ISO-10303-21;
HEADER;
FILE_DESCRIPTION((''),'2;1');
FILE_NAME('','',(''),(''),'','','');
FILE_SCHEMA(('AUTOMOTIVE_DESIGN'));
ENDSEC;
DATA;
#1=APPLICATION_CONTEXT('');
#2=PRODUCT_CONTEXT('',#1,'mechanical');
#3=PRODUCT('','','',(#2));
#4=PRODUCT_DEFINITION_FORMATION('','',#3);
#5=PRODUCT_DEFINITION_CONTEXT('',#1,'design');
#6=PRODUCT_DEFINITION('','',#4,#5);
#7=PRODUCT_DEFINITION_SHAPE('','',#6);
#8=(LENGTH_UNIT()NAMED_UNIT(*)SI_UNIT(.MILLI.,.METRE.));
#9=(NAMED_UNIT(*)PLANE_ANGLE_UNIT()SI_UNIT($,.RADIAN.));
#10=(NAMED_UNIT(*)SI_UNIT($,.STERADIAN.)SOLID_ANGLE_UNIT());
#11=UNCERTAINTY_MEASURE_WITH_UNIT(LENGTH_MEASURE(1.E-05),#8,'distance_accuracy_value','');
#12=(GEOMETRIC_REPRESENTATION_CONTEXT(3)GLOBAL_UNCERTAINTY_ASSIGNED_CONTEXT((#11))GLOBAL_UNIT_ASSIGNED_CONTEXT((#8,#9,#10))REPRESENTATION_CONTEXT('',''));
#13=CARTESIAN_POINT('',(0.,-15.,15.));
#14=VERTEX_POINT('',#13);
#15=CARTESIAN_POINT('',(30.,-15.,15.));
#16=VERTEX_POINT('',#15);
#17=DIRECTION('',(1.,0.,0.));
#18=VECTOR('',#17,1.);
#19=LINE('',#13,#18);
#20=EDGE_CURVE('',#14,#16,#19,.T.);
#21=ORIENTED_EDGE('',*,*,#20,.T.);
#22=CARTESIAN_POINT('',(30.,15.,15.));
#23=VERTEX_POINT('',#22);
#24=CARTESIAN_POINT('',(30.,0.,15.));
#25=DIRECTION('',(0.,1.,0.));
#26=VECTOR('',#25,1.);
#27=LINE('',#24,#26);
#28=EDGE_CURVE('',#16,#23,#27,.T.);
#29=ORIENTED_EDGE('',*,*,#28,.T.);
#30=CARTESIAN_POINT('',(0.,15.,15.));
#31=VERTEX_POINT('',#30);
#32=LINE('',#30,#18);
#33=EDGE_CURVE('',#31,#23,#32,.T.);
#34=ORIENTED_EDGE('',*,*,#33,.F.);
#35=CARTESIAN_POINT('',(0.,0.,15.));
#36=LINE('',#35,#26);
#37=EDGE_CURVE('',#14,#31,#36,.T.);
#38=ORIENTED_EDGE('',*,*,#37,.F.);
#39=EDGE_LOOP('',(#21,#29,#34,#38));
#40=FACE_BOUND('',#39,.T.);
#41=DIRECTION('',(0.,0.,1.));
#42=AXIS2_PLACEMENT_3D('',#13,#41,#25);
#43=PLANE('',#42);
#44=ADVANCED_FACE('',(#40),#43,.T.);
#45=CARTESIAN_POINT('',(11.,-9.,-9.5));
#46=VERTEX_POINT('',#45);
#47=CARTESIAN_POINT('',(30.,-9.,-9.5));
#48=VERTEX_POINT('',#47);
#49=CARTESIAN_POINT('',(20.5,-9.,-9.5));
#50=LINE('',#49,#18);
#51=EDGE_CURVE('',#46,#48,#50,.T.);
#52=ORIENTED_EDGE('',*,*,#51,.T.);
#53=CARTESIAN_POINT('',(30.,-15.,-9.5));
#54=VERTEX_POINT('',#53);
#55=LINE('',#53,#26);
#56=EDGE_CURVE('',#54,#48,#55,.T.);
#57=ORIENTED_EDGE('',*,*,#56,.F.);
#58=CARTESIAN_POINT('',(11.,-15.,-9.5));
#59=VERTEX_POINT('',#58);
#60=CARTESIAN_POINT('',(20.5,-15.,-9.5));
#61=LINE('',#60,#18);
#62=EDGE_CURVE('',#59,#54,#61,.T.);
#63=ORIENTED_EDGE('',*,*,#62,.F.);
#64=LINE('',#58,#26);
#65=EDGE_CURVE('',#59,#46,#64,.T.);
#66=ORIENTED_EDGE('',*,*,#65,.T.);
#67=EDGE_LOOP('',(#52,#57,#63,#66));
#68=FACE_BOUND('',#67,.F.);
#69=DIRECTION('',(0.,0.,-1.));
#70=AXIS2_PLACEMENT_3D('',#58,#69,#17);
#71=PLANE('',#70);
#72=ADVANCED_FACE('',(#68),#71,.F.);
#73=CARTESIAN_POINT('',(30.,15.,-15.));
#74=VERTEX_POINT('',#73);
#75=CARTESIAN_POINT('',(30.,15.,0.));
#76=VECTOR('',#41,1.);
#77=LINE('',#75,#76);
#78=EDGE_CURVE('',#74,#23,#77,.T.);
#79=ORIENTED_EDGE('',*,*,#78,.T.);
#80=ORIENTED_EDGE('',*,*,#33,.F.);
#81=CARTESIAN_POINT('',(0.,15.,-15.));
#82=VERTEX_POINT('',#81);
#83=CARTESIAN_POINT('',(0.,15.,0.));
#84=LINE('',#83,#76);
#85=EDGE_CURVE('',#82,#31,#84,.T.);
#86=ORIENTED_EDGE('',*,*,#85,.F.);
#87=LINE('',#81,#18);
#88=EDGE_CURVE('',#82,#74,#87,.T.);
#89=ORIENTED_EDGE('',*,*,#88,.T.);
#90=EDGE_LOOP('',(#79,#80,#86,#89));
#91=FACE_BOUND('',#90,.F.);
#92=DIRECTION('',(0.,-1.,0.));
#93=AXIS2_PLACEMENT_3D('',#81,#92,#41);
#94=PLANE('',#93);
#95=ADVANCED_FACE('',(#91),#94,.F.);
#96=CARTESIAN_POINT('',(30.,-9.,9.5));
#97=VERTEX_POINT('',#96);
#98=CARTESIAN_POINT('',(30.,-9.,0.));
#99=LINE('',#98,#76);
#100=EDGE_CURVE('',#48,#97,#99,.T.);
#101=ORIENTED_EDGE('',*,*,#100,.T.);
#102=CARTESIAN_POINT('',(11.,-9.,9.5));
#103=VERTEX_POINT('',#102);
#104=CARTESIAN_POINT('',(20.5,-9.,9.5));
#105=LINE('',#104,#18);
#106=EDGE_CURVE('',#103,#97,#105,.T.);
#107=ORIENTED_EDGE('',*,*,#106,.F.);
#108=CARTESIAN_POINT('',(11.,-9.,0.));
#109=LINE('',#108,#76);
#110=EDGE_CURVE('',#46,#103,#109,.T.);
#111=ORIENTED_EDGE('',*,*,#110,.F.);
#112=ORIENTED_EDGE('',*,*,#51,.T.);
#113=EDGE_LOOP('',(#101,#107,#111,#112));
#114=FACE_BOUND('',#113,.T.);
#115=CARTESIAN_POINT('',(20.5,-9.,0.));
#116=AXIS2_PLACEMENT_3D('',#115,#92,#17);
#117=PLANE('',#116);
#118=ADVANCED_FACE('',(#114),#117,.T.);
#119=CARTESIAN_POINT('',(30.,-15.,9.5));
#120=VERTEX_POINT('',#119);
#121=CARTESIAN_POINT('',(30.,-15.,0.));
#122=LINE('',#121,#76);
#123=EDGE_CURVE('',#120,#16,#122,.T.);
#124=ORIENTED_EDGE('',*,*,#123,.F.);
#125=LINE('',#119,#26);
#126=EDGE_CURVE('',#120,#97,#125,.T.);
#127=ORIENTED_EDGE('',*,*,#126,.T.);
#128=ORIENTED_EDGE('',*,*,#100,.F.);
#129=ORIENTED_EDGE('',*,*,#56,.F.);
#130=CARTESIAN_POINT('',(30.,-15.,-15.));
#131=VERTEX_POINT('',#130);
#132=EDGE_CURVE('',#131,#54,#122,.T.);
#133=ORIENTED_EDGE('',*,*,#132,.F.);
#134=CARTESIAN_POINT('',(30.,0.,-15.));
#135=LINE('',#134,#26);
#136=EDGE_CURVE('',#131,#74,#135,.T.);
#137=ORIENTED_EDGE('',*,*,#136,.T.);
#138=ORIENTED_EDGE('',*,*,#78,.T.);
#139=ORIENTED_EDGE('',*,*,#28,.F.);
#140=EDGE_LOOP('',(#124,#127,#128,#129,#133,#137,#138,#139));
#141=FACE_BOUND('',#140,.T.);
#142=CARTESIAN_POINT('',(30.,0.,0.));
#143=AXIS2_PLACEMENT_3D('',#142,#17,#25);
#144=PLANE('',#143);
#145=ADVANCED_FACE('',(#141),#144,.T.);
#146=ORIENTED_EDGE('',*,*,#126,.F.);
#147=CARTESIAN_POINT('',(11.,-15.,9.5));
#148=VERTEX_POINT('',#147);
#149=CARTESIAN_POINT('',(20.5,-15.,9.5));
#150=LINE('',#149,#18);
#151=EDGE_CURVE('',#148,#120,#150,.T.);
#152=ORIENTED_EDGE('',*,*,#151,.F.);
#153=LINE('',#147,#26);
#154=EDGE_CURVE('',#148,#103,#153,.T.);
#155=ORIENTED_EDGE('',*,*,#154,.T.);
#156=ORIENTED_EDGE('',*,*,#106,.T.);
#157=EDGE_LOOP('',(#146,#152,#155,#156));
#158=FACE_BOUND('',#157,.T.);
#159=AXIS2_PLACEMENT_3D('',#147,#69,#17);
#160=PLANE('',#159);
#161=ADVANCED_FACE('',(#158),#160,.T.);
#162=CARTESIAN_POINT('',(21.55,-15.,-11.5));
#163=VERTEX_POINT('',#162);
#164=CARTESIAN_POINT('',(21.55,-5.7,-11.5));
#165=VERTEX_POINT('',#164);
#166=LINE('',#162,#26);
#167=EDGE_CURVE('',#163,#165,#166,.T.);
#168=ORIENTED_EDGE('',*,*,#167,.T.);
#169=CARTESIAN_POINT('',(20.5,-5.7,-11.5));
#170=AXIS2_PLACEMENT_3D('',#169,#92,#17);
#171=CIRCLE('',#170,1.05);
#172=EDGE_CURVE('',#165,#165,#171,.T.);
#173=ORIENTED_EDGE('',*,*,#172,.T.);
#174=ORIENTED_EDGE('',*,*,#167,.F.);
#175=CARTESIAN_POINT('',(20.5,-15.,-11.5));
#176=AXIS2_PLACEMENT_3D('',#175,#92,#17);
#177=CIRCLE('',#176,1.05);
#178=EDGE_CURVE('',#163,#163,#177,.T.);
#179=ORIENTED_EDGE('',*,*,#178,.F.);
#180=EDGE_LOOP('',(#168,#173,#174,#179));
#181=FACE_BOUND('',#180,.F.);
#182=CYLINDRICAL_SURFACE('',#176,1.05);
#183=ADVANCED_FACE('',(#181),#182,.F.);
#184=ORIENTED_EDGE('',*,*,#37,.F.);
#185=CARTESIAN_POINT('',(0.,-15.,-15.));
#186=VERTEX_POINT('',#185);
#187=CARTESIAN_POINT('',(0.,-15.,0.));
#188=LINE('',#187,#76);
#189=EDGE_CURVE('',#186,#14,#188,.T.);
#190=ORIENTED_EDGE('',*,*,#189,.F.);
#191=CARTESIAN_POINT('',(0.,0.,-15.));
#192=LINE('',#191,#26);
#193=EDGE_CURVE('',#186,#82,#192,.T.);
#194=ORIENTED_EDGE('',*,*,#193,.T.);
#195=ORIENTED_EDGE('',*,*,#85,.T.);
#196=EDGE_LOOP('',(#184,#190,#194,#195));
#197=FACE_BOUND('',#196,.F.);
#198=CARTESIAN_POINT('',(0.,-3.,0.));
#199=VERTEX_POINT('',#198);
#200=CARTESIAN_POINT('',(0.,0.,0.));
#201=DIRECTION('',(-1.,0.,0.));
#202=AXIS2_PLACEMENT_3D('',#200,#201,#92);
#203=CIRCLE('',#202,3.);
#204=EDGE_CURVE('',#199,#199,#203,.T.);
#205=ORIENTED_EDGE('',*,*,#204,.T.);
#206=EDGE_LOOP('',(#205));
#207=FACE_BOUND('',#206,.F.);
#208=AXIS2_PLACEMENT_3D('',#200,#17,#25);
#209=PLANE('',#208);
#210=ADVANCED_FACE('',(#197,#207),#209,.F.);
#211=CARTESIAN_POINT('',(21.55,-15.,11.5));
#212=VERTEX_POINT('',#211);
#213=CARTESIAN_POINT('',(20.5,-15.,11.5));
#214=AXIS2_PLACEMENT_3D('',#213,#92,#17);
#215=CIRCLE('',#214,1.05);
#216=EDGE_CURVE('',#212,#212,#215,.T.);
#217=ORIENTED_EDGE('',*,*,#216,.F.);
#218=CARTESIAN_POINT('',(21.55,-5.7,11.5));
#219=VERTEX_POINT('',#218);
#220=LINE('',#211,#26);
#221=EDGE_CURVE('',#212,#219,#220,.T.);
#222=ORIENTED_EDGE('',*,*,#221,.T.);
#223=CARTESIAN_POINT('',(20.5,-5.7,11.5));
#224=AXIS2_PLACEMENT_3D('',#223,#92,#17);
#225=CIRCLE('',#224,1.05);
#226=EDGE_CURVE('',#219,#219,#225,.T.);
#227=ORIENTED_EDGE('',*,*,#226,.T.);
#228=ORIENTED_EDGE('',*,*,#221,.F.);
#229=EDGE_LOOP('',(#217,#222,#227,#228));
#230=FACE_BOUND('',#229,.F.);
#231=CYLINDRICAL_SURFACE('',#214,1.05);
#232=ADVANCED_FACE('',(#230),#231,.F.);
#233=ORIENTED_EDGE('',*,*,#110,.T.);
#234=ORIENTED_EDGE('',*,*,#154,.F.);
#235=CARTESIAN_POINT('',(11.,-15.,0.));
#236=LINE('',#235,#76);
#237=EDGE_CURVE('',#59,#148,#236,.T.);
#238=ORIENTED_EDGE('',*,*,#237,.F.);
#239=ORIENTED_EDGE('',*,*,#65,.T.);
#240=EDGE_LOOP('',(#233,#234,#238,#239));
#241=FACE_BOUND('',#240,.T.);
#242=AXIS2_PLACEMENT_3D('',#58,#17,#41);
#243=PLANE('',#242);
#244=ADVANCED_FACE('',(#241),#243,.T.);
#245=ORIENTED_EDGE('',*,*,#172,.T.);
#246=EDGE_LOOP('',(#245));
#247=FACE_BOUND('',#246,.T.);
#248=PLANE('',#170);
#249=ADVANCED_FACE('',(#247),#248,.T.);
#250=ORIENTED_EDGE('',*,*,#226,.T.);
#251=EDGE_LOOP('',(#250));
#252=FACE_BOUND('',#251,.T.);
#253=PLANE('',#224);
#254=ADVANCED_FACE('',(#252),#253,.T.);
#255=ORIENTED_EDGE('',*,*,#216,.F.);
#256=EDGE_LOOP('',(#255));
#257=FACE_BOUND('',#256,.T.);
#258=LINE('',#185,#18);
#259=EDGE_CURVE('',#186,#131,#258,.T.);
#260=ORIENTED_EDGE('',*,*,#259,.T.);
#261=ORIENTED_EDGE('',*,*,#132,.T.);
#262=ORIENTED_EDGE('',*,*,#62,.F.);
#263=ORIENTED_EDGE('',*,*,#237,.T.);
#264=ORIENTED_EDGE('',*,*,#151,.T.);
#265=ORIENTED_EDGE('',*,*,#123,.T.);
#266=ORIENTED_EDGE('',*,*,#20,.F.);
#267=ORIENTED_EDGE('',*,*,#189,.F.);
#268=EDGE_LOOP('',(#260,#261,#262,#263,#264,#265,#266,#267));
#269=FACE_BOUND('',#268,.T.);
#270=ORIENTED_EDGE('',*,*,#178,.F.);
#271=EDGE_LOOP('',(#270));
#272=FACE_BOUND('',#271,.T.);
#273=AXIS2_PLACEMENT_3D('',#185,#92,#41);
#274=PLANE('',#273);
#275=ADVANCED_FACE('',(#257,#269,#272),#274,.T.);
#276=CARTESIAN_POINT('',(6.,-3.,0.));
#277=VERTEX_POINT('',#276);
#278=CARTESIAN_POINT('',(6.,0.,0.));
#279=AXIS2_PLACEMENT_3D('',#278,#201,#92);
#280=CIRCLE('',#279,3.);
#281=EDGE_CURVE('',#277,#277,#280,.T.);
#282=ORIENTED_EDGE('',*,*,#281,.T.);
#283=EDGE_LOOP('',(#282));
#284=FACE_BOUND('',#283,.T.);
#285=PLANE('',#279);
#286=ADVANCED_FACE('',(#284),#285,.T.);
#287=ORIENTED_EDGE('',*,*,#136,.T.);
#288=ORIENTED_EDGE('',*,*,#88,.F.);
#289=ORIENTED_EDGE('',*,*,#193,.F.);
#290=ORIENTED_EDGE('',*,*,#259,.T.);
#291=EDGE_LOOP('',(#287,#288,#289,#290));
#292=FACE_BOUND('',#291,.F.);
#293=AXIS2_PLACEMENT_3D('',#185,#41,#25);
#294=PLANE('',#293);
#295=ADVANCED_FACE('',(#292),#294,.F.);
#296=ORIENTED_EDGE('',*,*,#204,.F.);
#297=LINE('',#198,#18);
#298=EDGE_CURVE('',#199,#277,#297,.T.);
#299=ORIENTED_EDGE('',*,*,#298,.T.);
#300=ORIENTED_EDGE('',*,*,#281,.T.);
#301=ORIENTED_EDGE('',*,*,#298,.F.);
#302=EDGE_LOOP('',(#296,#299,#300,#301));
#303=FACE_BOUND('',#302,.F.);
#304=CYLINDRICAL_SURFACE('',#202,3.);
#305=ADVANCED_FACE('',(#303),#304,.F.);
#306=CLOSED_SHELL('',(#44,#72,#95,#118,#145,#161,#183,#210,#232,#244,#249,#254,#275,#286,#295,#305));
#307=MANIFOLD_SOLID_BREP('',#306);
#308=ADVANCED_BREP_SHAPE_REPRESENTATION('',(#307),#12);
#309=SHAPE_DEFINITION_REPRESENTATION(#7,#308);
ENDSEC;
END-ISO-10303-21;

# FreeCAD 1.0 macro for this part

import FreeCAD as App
import Part
import Sketcher

V = App.Vector
Q = App.Units.Quantity

doc = App.newDocument("Part")
body = doc.addObject("PartDesign::Body", "Body")

sketch1 = body.newObject("Sketcher::SketchObject", "Sketch")
sketch1.AttachmentSupport = (doc.getObject("YZ_Plane"), [""])
sketch1.MapMode = "FlatFace"
sketch1.addGeometry(Part.LineSegment(V(-15, 15, 0), V(-15, -15, 0)), False)
sketch1.addGeometry(Part.LineSegment(V(-15, -15, 0), V(15, -15, 0)), False)
sketch1.addGeometry(Part.LineSegment(V(15, -15, 0), V(15, 15, 0)), False)
sketch1.addGeometry(Part.LineSegment(V(15, 15, 0), V(-15, 15, 0)), False)
sketch1.addConstraint(Sketcher.Constraint("Coincident", 0, 2, 1, 1))
sketch1.addConstraint(Sketcher.Constraint("Coincident", 1, 2, 2, 1))
sketch1.addConstraint(Sketcher.Constraint("Coincident", 2, 2, 3, 1))
sketch1.addConstraint(Sketcher.Constraint("Coincident", 3, 2, 0, 1))
sketch1.addConstraint(Sketcher.Constraint("Vertical", 0))
sketch1.addConstraint(Sketcher.Constraint("Horizontal", 1))
sketch1.addConstraint(Sketcher.Constraint("Vertical", 2))
sketch1.addConstraint(Sketcher.Constraint("Horizontal", 3))
sketch1.addConstraint(Sketcher.Constraint("Symmetric", 0, 2, 2, 2, -1, 1))
sketch1.addConstraint(Sketcher.Constraint("Equal", 3, 0))
sketch1.addConstraint(Sketcher.Constraint("DistanceX", 1, 1, 1, 2, Q("30 mm")))
pad1 = body.newObject("PartDesign::Pad", "Pad")
pad1.Profile = sketch1
pad1.Length = 30

sketch2 = body.newObject("Sketcher::SketchObject", "Sketch001")
sketch2.AttachmentSupport = (doc.getObject("YZ_Plane"), [""])
sketch2.MapMode = "FlatFace"
sketch2.addGeometry(Part.Circle(V(0, 0, 0), V(0, 0, 1), 3), False)
sketch2.addConstraint(Sketcher.Constraint("Coincident", 0, 3, -1, 1))
sketch2.addConstraint(Sketcher.Constraint("Diameter", 0, Q("6 mm")))
pocket1 = body.newObject("PartDesign::Pocket", "Pocket")
pocket1.Profile = sketch2
pocket1.Length = 6
pocket1.Reversed = True

sketch3 = body.newObject("Sketcher::SketchObject", "Sketch002")
sketch3.AttachmentSupport = (doc.getObject("XZ_Plane"), [""])
sketch3.MapMode = "FlatFace"
sketch3.AttachmentOffset = App.Placement(V(0, 0, 15), App.Rotation())
sketch3.addGeometry(Part.LineSegment(V(11, 10, 0), V(11, -10, 0)), False)
sketch3.addGeometry(Part.LineSegment(V(11, -10, 0), V(30, -10, 0)), False)
sketch3.addGeometry(Part.LineSegment(V(30, -10, 0), V(30, 10, 0)), False)
sketch3.addGeometry(Part.LineSegment(V(30, 10, 0), V(11, 10, 0)), False)
sketch3.addConstraint(Sketcher.Constraint("Coincident", 0, 2, 1, 1))
sketch3.addConstraint(Sketcher.Constraint("Coincident", 1, 2, 2, 1))
sketch3.addConstraint(Sketcher.Constraint("Coincident", 2, 2, 3, 1))
sketch3.addConstraint(Sketcher.Constraint("Coincident", 3, 2, 0, 1))
sketch3.addConstraint(Sketcher.Constraint("Vertical", 0))
sketch3.addConstraint(Sketcher.Constraint("Horizontal", 1))
sketch3.addConstraint(Sketcher.Constraint("Vertical", 2))
sketch3.addConstraint(Sketcher.Constraint("Horizontal", 3))
sketch3.addConstraint(Sketcher.Constraint("Equal", 3, 0))
sketch3.addConstraint(Sketcher.Constraint("DistanceX", 1, 1, 1, 2, Q("19 mm")))
sketch3.addConstraint(Sketcher.Constraint("DistanceX", -1, 1, 0, 2, Q("11 mm")))
sketch3.addConstraint(Sketcher.Constraint("DistanceY", 0, 2, -1, 1, Q("9.5 mm")))
pocket2 = body.newObject("PartDesign::Pocket", "Pocket001")
pocket2.Profile = sketch3
pocket2.Length = 6

sketch4 = body.newObject("Sketcher::SketchObject", "Sketch003")
sketch4.AttachmentSupport = (doc.getObject("XZ_Plane"), [""])
sketch4.MapMode = "FlatFace"
sketch4.AttachmentOffset = App.Placement(V(0, 0, 15), App.Rotation())
sketch4.addGeometry(Part.Circle(V(20.5, 11.5, 0), V(0, 0, 1), 1.1), False)
sketch4.addGeometry(Part.Circle(V(20.5, -11.5, 0), V(0, 0, 1), 1.1), False)
sketch4.addConstraint(Sketcher.Constraint("Equal", 0, 1))
sketch4.addConstraint(Sketcher.Constraint("Symmetric", 0, 3, 1, 3, -1))
sketch4.addConstraint(Sketcher.Constraint("Diameter", 0, Q("2.1 mm")))
sketch4.addConstraint(Sketcher.Constraint("DistanceY", 1, 3, 0, 3, Q("23 mm")))
sketch4.addConstraint(Sketcher.Constraint("DistanceX", -1, 1, 0, 3, Q("20.5 mm")))
pocket3 = body.newObject("PartDesign::Pocket", "Pocket002")
pocket3.Profile = sketch4
pocket3.Length = 9.3

doc.recompute()
